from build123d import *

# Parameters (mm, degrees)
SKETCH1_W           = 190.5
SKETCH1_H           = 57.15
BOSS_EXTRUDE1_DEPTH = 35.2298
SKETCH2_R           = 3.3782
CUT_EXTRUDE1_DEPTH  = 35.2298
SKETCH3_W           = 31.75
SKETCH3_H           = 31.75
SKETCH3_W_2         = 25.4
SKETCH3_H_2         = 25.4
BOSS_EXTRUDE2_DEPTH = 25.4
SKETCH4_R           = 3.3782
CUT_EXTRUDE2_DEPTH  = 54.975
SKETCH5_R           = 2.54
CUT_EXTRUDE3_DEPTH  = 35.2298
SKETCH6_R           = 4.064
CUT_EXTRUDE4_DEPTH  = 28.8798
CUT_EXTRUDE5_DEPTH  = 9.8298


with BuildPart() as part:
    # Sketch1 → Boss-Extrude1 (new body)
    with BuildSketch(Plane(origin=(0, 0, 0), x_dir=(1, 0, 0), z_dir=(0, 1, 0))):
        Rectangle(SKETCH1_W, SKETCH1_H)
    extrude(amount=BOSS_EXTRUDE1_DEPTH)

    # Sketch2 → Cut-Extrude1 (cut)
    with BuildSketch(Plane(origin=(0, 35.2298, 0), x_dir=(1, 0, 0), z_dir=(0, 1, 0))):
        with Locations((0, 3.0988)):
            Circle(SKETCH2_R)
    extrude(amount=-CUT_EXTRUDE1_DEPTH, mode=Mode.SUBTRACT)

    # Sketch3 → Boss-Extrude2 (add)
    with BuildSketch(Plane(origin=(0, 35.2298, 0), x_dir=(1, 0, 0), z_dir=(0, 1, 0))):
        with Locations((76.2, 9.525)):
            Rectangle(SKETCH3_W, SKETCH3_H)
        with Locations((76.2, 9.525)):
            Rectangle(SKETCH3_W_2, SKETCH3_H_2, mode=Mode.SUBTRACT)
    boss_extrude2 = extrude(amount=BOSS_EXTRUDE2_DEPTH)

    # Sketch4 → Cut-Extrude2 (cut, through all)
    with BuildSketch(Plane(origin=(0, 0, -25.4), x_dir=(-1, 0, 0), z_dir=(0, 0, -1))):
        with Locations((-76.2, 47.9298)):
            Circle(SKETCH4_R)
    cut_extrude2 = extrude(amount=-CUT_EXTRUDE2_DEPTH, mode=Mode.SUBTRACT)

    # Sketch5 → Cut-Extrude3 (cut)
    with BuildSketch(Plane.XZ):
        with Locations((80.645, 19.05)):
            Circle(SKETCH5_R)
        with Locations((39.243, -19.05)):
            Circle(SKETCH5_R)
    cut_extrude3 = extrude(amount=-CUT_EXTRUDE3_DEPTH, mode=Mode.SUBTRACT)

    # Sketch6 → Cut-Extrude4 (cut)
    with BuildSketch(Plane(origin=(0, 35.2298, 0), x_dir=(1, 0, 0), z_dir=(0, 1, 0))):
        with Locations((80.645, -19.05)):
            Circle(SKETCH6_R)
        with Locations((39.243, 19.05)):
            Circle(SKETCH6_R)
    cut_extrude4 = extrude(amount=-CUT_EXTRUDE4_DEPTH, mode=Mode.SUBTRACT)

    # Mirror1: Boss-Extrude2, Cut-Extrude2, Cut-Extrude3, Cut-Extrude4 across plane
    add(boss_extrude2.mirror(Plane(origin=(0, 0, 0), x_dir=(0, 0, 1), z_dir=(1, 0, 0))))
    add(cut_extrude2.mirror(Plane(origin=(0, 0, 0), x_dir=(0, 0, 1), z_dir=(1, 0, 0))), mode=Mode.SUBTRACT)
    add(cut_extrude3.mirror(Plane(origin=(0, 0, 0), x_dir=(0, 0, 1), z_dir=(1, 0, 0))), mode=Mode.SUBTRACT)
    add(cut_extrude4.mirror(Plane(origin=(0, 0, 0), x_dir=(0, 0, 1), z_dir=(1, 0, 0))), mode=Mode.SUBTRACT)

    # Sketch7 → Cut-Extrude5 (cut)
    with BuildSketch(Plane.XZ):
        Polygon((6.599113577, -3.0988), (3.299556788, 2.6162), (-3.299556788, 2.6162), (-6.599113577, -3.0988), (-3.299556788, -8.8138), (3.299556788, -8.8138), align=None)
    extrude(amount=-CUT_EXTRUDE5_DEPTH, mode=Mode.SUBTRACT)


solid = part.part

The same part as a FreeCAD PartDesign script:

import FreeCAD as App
import Part
import Sketcher
from FreeCAD import Vector
Q = App.Units.Quantity

doc = App.newDocument("Part")
body = doc.addObject("PartDesign::Body", "Body")

# Sketch on XZ plane
sketch1 = body.newObject("Sketcher::SketchObject", "Sketch")
sketch1.AttachmentSupport = (doc.getObject("XZ_Plane"), [""])
sketch1.MapMode = "FlatFace"
sketch1.addGeometry([
    Part.LineSegment(Vector(-95, -29, 0), Vector(-95, 29, 0)),
    Part.LineSegment(Vector(-95, 29, 0), Vector(95, 29, 0)),
    Part.LineSegment(Vector(95, 29, 0), Vector(95, -29, 0)),
    Part.LineSegment(Vector(95, -29, 0), Vector(-95, -29, 0)),
], False)
sketch1.addConstraint([
    Sketcher.Constraint("Coincident", 0, 2, 1, 1),
    Sketcher.Constraint("Coincident", 1, 2, 2, 1),
    Sketcher.Constraint("Coincident", 2, 2, 3, 1),
    Sketcher.Constraint("Coincident", 3, 2, 0, 1),
    Sketcher.Constraint("Vertical", 0),
    Sketcher.Constraint("Horizontal", 1),
    Sketcher.Constraint("Vertical", 2),
    Sketcher.Constraint("Horizontal", 3),
    Sketcher.Constraint("Symmetric", 0, 2, 2, 2, -1, 1),
    Sketcher.Constraint("DistanceX", 1, 1, 1, 2, Q("7.5 in")),
    Sketcher.Constraint("DistanceY", 0, 1, 0, 2, Q("2.25 in")),
])
pad1 = body.newObject("PartDesign::Pad", "Pad")
pad1.Profile = sketch1
pad1.Length = Q("1.387 in")
pad1.Reversed = True

# Sketch on XZ plane
sketch2 = body.newObject("Sketcher::SketchObject", "Sketch001")
sketch2.AttachmentSupport = (doc.getObject("XZ_Plane"), [""])
sketch2.MapMode = "FlatFace"
sketch2.AttachmentOffset = App.Placement(Vector(0, 0, -1.387 * 25.4), App.Rotation())
sketch2.addGeometry(Part.Circle(Vector(0, -3.1, 0), Vector(0, 0, 1), 3.4), False)
sketch2.addConstraint([
    Sketcher.Constraint("PointOnObject", 0, 3, -2),
    Sketcher.Constraint("Diameter", 0, Q("0.266 in")),
    Sketcher.Constraint("DistanceY", 0, 3, -1, 1, Q("0.122 in")),
])
pocket1 = body.newObject("PartDesign::Pocket", "Pocket")
pocket1.Profile = sketch2
pocket1.Length = Q("1.387 in")
pocket1.Reversed = True

# Sketch on XZ plane
sketch3 = body.newObject("Sketcher::SketchObject", "Sketch002")
sketch3.AttachmentSupport = (doc.getObject("XZ_Plane"), [""])
sketch3.MapMode = "FlatFace"
sketch3.AttachmentOffset = App.Placement(Vector(0, 0, -1.387 * 25.4), App.Rotation())
sketch3.addGeometry([
    Part.LineSegment(Vector(60, -25, 0), Vector(60, 6, 0)),  # 0
    Part.LineSegment(Vector(60, 6, 0), Vector(92, 6, 0)),  # 1
    Part.LineSegment(Vector(92, 6, 0), Vector(92, -25, 0)),  # 2
    Part.LineSegment(Vector(92, -25, 0), Vector(60, -25, 0)),  # 3
    Part.LineSegment(Vector(89, 3, 0), Vector(64, 3, 0)),  # 4
    Part.LineSegment(Vector(64, 3, 0), Vector(64, -22, 0)),  # 5
    Part.LineSegment(Vector(64, -22, 0), Vector(89, -22, 0)),  # 6
    Part.LineSegment(Vector(89, -22, 0), Vector(89, 3, 0)),  # 7
], False)
sketch3.addConstraint([
    Sketcher.Constraint("Coincident", 0, 2, 1, 1),
    Sketcher.Constraint("Coincident", 1, 2, 2, 1),
    Sketcher.Constraint("Coincident", 2, 2, 3, 1),
    Sketcher.Constraint("Coincident", 3, 2, 0, 1),
    Sketcher.Constraint("Coincident", 4, 2, 5, 1),
    Sketcher.Constraint("Coincident", 5, 2, 6, 1),
    Sketcher.Constraint("Coincident", 6, 2, 7, 1),
    Sketcher.Constraint("Coincident", 7, 2, 4, 1),
    Sketcher.Constraint("Vertical", 0),
    Sketcher.Constraint("Horizontal", 1),
    Sketcher.Constraint("Vertical", 2),
    Sketcher.Constraint("Horizontal", 3),
    Sketcher.Constraint("Horizontal", 4),
    Sketcher.Constraint("Vertical", 5),
    Sketcher.Constraint("Horizontal", 6),
    Sketcher.Constraint("Vertical", 7),
    Sketcher.Constraint("Equal", 3, 0),
    Sketcher.Constraint("Equal", 6, 5),
    Sketcher.Constraint("DistanceX", 4, 2, 4, 1, Q("1 in")),
    Sketcher.Constraint("DistanceY", 2, 2, -1, 1, Q("1 in")),
    Sketcher.Constraint("DistanceX", 1, 1, 1, 2, Q("1.25 in")),
    Sketcher.Constraint("DistanceX", -1, 1, 4, 2, Q("2.5 in")),
    Sketcher.Constraint("DistanceX", -1, 1, 0, 2, Q("2.375 in")),
    Sketcher.Constraint("DistanceY", -1, 1, 4, 2, Q("0.125 in")),
])
pad2 = body.newObject("PartDesign::Pad", "Pad001")
pad2.Profile = sketch3
pad2.Length = Q("1 in")
pad2.Reversed = True

# Sketch on XY plane
sketch4 = body.newObject("Sketcher::SketchObject", "Sketch003")
sketch4.AttachmentSupport = (doc.getObject("XY_Plane"), [""])
sketch4.MapMode = "FlatFace"
sketch4.AttachmentOffset = App.Placement(Vector(0, 0, -1 * 25.4), App.Rotation())
sketch4.addGeometry(Part.Circle(Vector(76.2, 47.9, 0), Vector(0, 0, 1), 3.4), False)
sketch4.addConstraint([
    Sketcher.Constraint("Diameter", 0, Q("0.266 in")),
    Sketcher.Constraint("DistanceX", -1, 1, 0, 3, Q("3 in")),
    Sketcher.Constraint("DistanceY", -1, 1, 0, 3, Q("1.887 in")),
])
pocket2 = body.newObject("PartDesign::Pocket", "Pocket001")
pocket2.Profile = sketch4
pocket2.Type = "ThroughAll"
pocket2.Reversed = True

# Sketch on XZ plane
sketch5 = body.newObject("Sketcher::SketchObject", "Sketch004")
sketch5.AttachmentSupport = (doc.getObject("XZ_Plane"), [""])
sketch5.MapMode = "FlatFace"
sketch5.addGeometry([
    Part.Circle(Vector(80.6, 19.1, 0), Vector(0, 0, 1), 2.5),
    Part.Circle(Vector(39.2, -19.1, 0), Vector(0, 0, 1), 2.5),
], False)
sketch5.addConstraint([
    Sketcher.Constraint("Equal", 0, 1),
    Sketcher.Constraint("Diameter", 0, Q("0.2 in")),
    Sketcher.Constraint("DistanceY", 1, 3, 0, 3, Q("1.5 in")),
    Sketcher.Constraint("DistanceY", -1, 1, 0, 3, Q("0.75 in")),
    Sketcher.Constraint("DistanceX", 1, 3, 0, 3, Q("1.63 in")),
    Sketcher.Constraint("DistanceX", -1, 1, 0, 3, Q("3.175 in")),
])
pocket3 = body.newObject("PartDesign::Pocket", "Pocket002")
pocket3.Profile = sketch5
pocket3.Length = Q("1.387 in")

# Sketch on XZ plane
sketch6 = body.newObject("Sketcher::SketchObject", "Sketch005")
sketch6.AttachmentSupport = (doc.getObject("XZ_Plane"), [""])
sketch6.MapMode = "FlatFace"
sketch6.AttachmentOffset = App.Placement(Vector(0, 0, -1.387 * 25.4), App.Rotation())
sketch6.addGeometry([
    Part.Circle(Vector(80.6, 19.1, 0), Vector(0, 0, 1), 4.1),
    Part.Circle(Vector(39.2, -19.1, 0), Vector(0, 0, 1), 4.1),
], False)
sketch6.addConstraint([
    Sketcher.Constraint("Equal", 0, 1),
    Sketcher.Constraint("Diameter", 0, Q("0.32 in")),
    Sketcher.Constraint("DistanceY", 1, 3, 0, 3, Q("1.5 in")),
    Sketcher.Constraint("DistanceY", -1, 1, 0, 3, Q("0.75 in")),
    Sketcher.Constraint("DistanceX", 1, 3, 0, 3, Q("1.63 in")),
    Sketcher.Constraint("DistanceX", -1, 1, 0, 3, Q("3.175 in")),
])
pocket4 = body.newObject("PartDesign::Pocket", "Pocket003")
pocket4.Profile = sketch6
pocket4.Length = Q("1.137 in")
pocket4.Reversed = True
doc.recompute()

mirrored = body.newObject("PartDesign::Mirrored", "Mirrored")
mirrored.Originals = [pad2, pocket2, pocket3, pocket4]
mirrored.MirrorPlane = (doc.getObject("YZ_Plane"), [""])
body.Tip = mirrored

# Sketch on XZ plane
sketch7 = body.newObject("Sketcher::SketchObject", "Sketch006")
sketch7.AttachmentSupport = (doc.getObject("XZ_Plane"), [""])
sketch7.MapMode = "FlatFace"
sketch7.addGeometry([
    Part.LineSegment(Vector(7, -3, 0), Vector(3, 3, 0)),  # 0
    Part.LineSegment(Vector(3, 3, 0), Vector(-3, 3, 0)),  # 1
    Part.LineSegment(Vector(-3, 3, 0), Vector(-7, -3, 0)),  # 2
    Part.LineSegment(Vector(-7, -3, 0), Vector(-3, -9, 0)),  # 3
    Part.LineSegment(Vector(-3, -9, 0), Vector(3, -9, 0)),  # 4
    Part.LineSegment(Vector(3, -9, 0), Vector(7, -3, 0)),  # 5
], False)
sketch7.addConstraint([
    Sketcher.Constraint("Coincident", 0, 2, 1, 1),
    Sketcher.Constraint("Coincident", 1, 2, 2, 1),
    Sketcher.Constraint("Coincident", 2, 2, 3, 1),
    Sketcher.Constraint("Coincident", 3, 2, 4, 1),
    Sketcher.Constraint("Coincident", 4, 2, 5, 1),
    Sketcher.Constraint("Coincident", 5, 2, 0, 1),
    Sketcher.Constraint("Horizontal", 1),
    Sketcher.Constraint("Horizontal", 4),
    Sketcher.Constraint("Symmetric", 2, 2, 5, 2, -2),
    Sketcher.Constraint("Parallel", 0, 3),
    Sketcher.Constraint("Parallel", 2, 5),
    Sketcher.Constraint("Vertical", 1, 2, 3, 2),
    Sketcher.Constraint("Vertical", 0, 2, 4, 2),
    Sketcher.Constraint("Angle", 0, Q("120 deg")),
    Sketcher.Constraint("DistanceY", 3, 2, 1, 2, Q("0.45 in")),
    Sketcher.Constraint("DistanceY", -1, 1, 0, 2, Q("0.103 in")),
    Sketcher.Constraint("DistanceX", 1, 2, 1, 1, Q("6.599114 mm")),
])
pocket5 = body.newObject("PartDesign::Pocket", "Pocket004")
pocket5.Profile = sketch7
pocket5.Length = Q("0.387 in")

doc.recompute()
